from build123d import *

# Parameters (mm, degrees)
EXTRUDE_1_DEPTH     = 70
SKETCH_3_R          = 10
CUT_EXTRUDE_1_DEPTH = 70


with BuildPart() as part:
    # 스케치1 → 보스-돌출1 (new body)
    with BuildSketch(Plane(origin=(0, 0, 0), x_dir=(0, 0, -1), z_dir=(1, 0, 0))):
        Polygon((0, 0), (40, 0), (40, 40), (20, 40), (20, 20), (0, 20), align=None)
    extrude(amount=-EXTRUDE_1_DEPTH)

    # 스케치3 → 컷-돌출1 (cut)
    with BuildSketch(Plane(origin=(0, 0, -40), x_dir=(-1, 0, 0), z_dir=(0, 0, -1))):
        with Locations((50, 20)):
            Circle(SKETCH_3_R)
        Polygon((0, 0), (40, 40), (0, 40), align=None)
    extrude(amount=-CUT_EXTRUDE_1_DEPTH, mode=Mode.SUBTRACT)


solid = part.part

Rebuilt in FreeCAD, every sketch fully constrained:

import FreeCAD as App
import Part
import Sketcher

V = App.Vector
Q = App.Units.Quantity


def add_polygon(sketch, points):
    """Adds a closed chain of lines whose ends are joined by coincident constraints."""
    first, n = sketch.GeometryCount, len(points)
    for a, b in zip(points, points[1:] + points[:1]):
        sketch.addGeometry(Part.LineSegment(App.Vector(*a, 0), App.Vector(*b, 0)), False)
    for i in range(n):
        sketch.addConstraint(Sketcher.Constraint("Coincident", first + i, 2, first + (i + 1) % n, 1))

doc = App.newDocument("Part")
body = doc.addObject("PartDesign::Body", "Body")

# Sketch on YZ plane
sketch1 = body.newObject("Sketcher::SketchObject", "Sketch")
sketch1.AttachmentSupport = (doc.getObject("YZ_Plane"), [""])
sketch1.MapMode = "FlatFace"
add_polygon(sketch1, [(0, 0), (0, -40), (40, -40), (40, -20), (20, -20), (20, 0)])  # lines 0-5
sketch1.addConstraint(Sketcher.Constraint("Vertical", 0))
sketch1.addConstraint(Sketcher.Constraint("Horizontal", 1))
sketch1.addConstraint(Sketcher.Constraint("Vertical", 2))
sketch1.addConstraint(Sketcher.Constraint("Horizontal", 3))
sketch1.addConstraint(Sketcher.Constraint("Vertical", 4))
sketch1.addConstraint(Sketcher.Constraint("Horizontal", 5))
sketch1.addConstraint(Sketcher.Constraint("Coincident", 5, 2, -1, 1))
sketch1.addConstraint(Sketcher.Constraint("Equal", 3, 5))
sketch1.addConstraint(Sketcher.Constraint("Equal", 1, 0))
sketch1.addConstraint(Sketcher.Constraint("Equal", 5, 2))
sketch1.addConstraint(Sketcher.Constraint("DistanceX", 1, 1, 1, 2, Q("40 mm")))
pad1 = body.newObject("PartDesign::Pad", "Pad")
pad1.Profile = sketch1
pad1.Length = 70
pad1.Reversed = True

# Sketch on XY plane
sketch2 = body.newObject("Sketcher::SketchObject", "Sketch001")
sketch2.AttachmentSupport = (doc.getObject("XY_Plane"), [""])
sketch2.MapMode = "FlatFace"
sketch2.AttachmentOffset = App.Placement(V(0, 0, -40), App.Rotation())
sketch2.addGeometry(Part.Circle(V(-50, 20, 0), V(0, 0, 1), 10), False)  # 0
add_polygon(sketch2, [(0, 0), (-40, 40), (0, 40)])  # lines 1-3
sketch2.addConstraint(Sketcher.Constraint("Horizontal", 2))
sketch2.addConstraint(Sketcher.Constraint("Vertical", 3))
sketch2.addConstraint(Sketcher.Constraint("Coincident", 3, 2, -1, 1))
sketch2.addConstraint(Sketcher.Constraint("Equal", 2, 3))
sketch2.addConstraint(Sketcher.Constraint("Diameter", 0, Q("20 mm")))
sketch2.addConstraint(Sketcher.Constraint("DistanceX", 2, 1, 2, 2, Q("40 mm")))
sketch2.addConstraint(Sketcher.Constraint("DistanceX", 0, 3, -1, 1, Q("50 mm")))
sketch2.addConstraint(Sketcher.Constraint("DistanceY", -1, 1, 0, 3, Q("20 mm")))
pocket1 = body.newObject("PartDesign::Pocket", "Pocket")
pocket1.Profile = sketch2
pocket1.Length = 70
pocket1.Reversed = True

doc.recompute()
